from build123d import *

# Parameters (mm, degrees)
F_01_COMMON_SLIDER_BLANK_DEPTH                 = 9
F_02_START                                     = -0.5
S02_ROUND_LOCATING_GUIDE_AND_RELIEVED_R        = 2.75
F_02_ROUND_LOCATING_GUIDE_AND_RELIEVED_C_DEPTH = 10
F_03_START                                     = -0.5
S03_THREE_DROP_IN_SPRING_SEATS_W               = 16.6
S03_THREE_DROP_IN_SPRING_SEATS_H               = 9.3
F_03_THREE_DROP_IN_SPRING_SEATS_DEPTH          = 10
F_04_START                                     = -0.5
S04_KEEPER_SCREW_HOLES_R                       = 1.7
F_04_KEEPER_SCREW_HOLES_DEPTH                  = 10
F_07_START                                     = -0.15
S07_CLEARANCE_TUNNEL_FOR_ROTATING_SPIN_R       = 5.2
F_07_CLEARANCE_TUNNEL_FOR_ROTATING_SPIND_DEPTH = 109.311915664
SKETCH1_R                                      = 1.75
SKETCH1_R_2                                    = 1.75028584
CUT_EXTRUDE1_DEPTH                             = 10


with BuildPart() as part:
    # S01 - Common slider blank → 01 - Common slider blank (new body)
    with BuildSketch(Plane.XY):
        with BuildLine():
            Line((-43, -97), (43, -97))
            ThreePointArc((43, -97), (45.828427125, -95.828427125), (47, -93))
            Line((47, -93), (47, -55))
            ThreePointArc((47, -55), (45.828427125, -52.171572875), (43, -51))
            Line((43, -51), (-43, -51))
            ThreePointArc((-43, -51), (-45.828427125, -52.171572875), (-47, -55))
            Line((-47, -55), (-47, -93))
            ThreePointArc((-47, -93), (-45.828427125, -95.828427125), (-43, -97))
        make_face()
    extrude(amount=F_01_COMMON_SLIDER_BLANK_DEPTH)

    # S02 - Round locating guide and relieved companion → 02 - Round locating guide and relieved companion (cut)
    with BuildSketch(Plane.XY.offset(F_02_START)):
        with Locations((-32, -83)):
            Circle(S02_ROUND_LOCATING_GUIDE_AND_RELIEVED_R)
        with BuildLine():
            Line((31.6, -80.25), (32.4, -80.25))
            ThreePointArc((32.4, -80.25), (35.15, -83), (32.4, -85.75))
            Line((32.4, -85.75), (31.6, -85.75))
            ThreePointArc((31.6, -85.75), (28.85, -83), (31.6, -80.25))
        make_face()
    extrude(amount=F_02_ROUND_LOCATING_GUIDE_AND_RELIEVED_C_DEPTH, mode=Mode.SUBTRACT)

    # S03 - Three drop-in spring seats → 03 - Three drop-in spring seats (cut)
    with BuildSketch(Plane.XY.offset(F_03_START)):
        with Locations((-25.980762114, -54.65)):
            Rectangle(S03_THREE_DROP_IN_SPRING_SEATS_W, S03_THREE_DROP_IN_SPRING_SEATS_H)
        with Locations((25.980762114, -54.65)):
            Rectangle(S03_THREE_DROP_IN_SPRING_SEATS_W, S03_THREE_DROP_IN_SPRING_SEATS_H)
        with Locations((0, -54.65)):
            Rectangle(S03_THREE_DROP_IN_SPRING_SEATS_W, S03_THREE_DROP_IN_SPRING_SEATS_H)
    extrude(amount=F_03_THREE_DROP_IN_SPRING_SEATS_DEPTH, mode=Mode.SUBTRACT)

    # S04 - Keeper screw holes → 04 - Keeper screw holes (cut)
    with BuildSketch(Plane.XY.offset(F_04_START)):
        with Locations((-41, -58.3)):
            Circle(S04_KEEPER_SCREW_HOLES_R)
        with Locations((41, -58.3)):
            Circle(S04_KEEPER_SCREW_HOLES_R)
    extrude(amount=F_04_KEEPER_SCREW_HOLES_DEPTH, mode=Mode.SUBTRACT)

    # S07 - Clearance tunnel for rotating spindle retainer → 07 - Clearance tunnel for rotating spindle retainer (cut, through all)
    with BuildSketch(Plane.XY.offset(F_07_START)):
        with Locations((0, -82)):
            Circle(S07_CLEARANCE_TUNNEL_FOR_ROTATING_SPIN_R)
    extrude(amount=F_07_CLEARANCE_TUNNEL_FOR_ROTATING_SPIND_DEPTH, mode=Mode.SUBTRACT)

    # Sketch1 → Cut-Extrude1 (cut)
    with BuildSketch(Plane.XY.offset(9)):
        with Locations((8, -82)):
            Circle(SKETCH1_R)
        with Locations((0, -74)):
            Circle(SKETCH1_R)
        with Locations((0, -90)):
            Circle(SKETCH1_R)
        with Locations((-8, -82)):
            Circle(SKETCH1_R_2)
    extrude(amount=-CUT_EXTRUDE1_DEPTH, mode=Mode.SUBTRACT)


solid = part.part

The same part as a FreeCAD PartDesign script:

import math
import FreeCAD as App
import Part
import Sketcher

V = App.Vector
Q = App.Units.Quantity

doc = App.newDocument("Part")
body = doc.addObject("PartDesign::Body", "Body")

# Sketch on XY plane
sketch1 = doc.addObject("Sketcher::SketchObject", "Sketch")
body.addObject(sketch1)
sketch1.AttachmentSupport = (doc.XY_Plane, [""])
sketch1.MapMode = "FlatFace"
sketch1.addGeometry([
    Part.LineSegment(V(-43, -97, 0), V(43, -97, 0)),  # 0
    Part.ArcOfCircle(Part.Circle(V(43, -93, 0), V(0, 0, 1), 4), math.radians(-90), math.radians(0)),  # 1
    Part.LineSegment(V(47, -93, 0), V(47, -55, 0)),  # 2
    Part.ArcOfCircle(Part.Circle(V(43, -55, 0), V(0, 0, 1), 4), math.radians(0), math.radians(90)),  # 3
    Part.LineSegment(V(43, -51, 0), V(-43, -51, 0)),  # 4
    Part.ArcOfCircle(Part.Circle(V(-43, -55, 0), V(0, 0, 1), 4), math.radians(90), math.radians(180)),  # 5
    Part.LineSegment(V(-47, -55, 0), V(-47, -93, 0)),  # 6
    Part.ArcOfCircle(Part.Circle(V(-43, -93, 0), V(0, 0, 1), 4), math.radians(180), math.radians(270)),  # 7
], False)
sketch1.addConstraint([
    Sketcher.Constraint("Tangent", 0, 2, 1, 1),
    Sketcher.Constraint("Tangent", 1, 2, 2, 1),
    Sketcher.Constraint("Tangent", 2, 2, 3, 1),
    Sketcher.Constraint("Tangent", 3, 2, 4, 1),
    Sketcher.Constraint("Tangent", 4, 2, 5, 1),
    Sketcher.Constraint("Tangent", 5, 2, 6, 1),
    Sketcher.Constraint("Tangent", 6, 2, 7, 1),
    Sketcher.Constraint("Tangent", 7, 2, 0, 1),
    Sketcher.Constraint("Horizontal", 0),
    Sketcher.Constraint("Vertical", 2),
    Sketcher.Constraint("Horizontal", 4),
    Sketcher.Constraint("Vertical", 6),
    Sketcher.Constraint("Equal", 1, 3),
    Sketcher.Constraint("Equal", 3, 5),
    Sketcher.Constraint("Equal", 5, 7),
    Sketcher.Constraint("Radius", 1, Q("4 mm")),
    Sketcher.Constraint("DistanceX", 0, 1, 0, 2, Q("86 mm")),
    Sketcher.Constraint("DistanceY", 2, 1, 2, 2, Q("38 mm")),
    Sketcher.Constraint("DistanceX", -1, 1, 1, 3, Q("43 mm")),
    Sketcher.Constraint("DistanceY", 1, 3, -1, 1, Q("93 mm")),
])
pad1 = doc.addObject("PartDesign::Pad", "Pad")
body.addObject(pad1)
pad1.Profile = sketch1
pad1.Length = 9

# Sketch on XY plane
sketch2 = doc.addObject("Sketcher::SketchObject", "Sketch001")
body.addObject(sketch2)
sketch2.AttachmentSupport = (doc.XY_Plane, [""])
sketch2.MapMode = "FlatFace"
sketch2.AttachmentOffset = App.Placement(V(0, 0, -0.5), App.Rotation())
sketch2.addGeometry([
    Part.Circle(V(-32, -83, 0), V(0, 0, 1), 2.8),  # 0
    Part.LineSegment(V(32.4, -80.2, 0), V(31.6, -80.2, 0)),  # 1
    Part.ArcOfCircle(Part.Circle(V(31.6, -83, 0), V(0, 0, 1), 2.8), math.radians(90), math.radians(270)),  # 2
    Part.LineSegment(V(31.6, -85.8, 0), V(32.4, -85.8, 0)),  # 3
    Part.ArcOfCircle(Part.Circle(V(32.4, -83, 0), V(0, 0, 1), 2.8), math.radians(-90), math.radians(90)),  # 4
], False)
sketch2.addConstraint([
    Sketcher.Constraint("Tangent", 1, 2, 2, 1),
    Sketcher.Constraint("Tangent", 2, 2, 3, 1),
    Sketcher.Constraint("Tangent", 3, 2, 4, 1),
    Sketcher.Constraint("Tangent", 4, 2, 1, 1),
    Sketcher.Constraint("Horizontal", 1),
    Sketcher.Constraint("Horizontal", 3),
    Sketcher.Constraint("Equal", 0, 2),
    Sketcher.Constraint("Horizontal", 0, 3, 2, 3),
    Sketcher.Constraint("Diameter", 0, Q("5.5 mm")),
    Sketcher.Constraint("DistanceX", 1, 2, 1, 1, Q("0.8 mm")),
    Sketcher.Constraint("DistanceX", 0, 3, -1, 1, Q("32 mm")),
    Sketcher.Constraint("DistanceY", 0, 3, -1, 1, Q("83 mm")),
    Sketcher.Constraint("DistanceX", -1, 1, 2, 3, Q("31.6 mm")),
])
pocket1 = doc.addObject("PartDesign::Pocket", "Pocket")
body.addObject(pocket1)
pocket1.Profile = sketch2
pocket1.Length = 10
pocket1.Reversed = True

# Sketch on XY plane
sketch3 = doc.addObject("Sketcher::SketchObject", "Sketch002")
body.addObject(sketch3)
sketch3.AttachmentSupport = (doc.XY_Plane, [""])
sketch3.MapMode = "FlatFace"
sketch3.AttachmentOffset = App.Placement(V(0, 0, -0.5), App.Rotation())
sketch3.addGeometry([
    Part.LineSegment(V(-34, -50, 0), V(-34, -59, 0)),  # 0
    Part.LineSegment(V(-34, -59, 0), V(-18, -59, 0)),  # 1
    Part.LineSegment(V(-18, -59, 0), V(-18, -50, 0)),  # 2
    Part.LineSegment(V(-18, -50, 0), V(-34, -50, 0)),  # 3
    Part.LineSegment(V(18, -50, 0), V(18, -59, 0)),  # 4
    Part.LineSegment(V(18, -59, 0), V(34, -59, 0)),  # 5
    Part.LineSegment(V(34, -59, 0), V(34, -50, 0)),  # 6
    Part.LineSegment(V(34, -50, 0), V(18, -50, 0)),  # 7
    Part.LineSegment(V(-8, -50, 0), V(-8, -59, 0)),  # 8
    Part.LineSegment(V(-8, -59, 0), V(8, -59, 0)),  # 9
    Part.LineSegment(V(8, -59, 0), V(8, -50, 0)),  # 10
    Part.LineSegment(V(8, -50, 0), V(-8, -50, 0)),  # 11
], False)
sketch3.addConstraint([
    Sketcher.Constraint("Coincident", 0, 2, 1, 1),
    Sketcher.Constraint("Coincident", 1, 2, 2, 1),
    Sketcher.Constraint("Coincident", 2, 2, 3, 1),
    Sketcher.Constraint("Coincident", 3, 2, 0, 1),
    Sketcher.Constraint("Coincident", 4, 2, 5, 1),
    Sketcher.Constraint("Coincident", 5, 2, 6, 1),
    Sketcher.Constraint("Coincident", 6, 2, 7, 1),
    Sketcher.Constraint("Coincident", 7, 2, 4, 1),
    Sketcher.Constraint("Coincident", 8, 2, 9, 1),
    Sketcher.Constraint("Coincident", 9, 2, 10, 1),
    Sketcher.Constraint("Coincident", 10, 2, 11, 1),
    Sketcher.Constraint("Coincident", 11, 2, 8, 1),
    Sketcher.Constraint("Vertical", 0),
    Sketcher.Constraint("Horizontal", 1),
    Sketcher.Constraint("Vertical", 2),
    Sketcher.Constraint("Horizontal", 3),
    Sketcher.Constraint("Vertical", 4),
    Sketcher.Constraint("Horizontal", 5),
    Sketcher.Constraint("Vertical", 6),
    Sketcher.Constraint("Horizontal", 7),
    Sketcher.Constraint("Vertical", 8),
    Sketcher.Constraint("Horizontal", 9),
    Sketcher.Constraint("Vertical", 10),
    Sketcher.Constraint("Horizontal", 11),
    Sketcher.Constraint("Symmetric", 1, 2, 4, 2, -2),
    Sketcher.Constraint("Symmetric", 3, 2, 6, 2, -2),
    Sketcher.Constraint("Horizontal", 5, 2, 8, 2),
    Sketcher.Constraint("Horizontal", 7, 2, 10, 2),
    Sketcher.Constraint("Equal", 7, 9),
    Sketcher.Constraint("DistanceX", 1, 1, 1, 2, Q("16.6 mm")),
    Sketcher.Constraint("DistanceY", 0, 2, 0, 1, Q("9.3 mm")),
    Sketcher.Constraint("DistanceY", 2, 2, -1, 1, Q("50 mm")),
    Sketcher.Constraint("DistanceX", 8, 2, -1, 1, Q("8.3 mm")),
    Sketcher.Constraint("DistanceX", 0, 2, -1, 1, Q("34.280762 mm")),
])
pocket2 = doc.addObject("PartDesign::Pocket", "Pocket001")
body.addObject(pocket2)
pocket2.Profile = sketch3
pocket2.Length = 10
pocket2.Reversed = True

# Sketch on XY plane
sketch4 = doc.addObject("Sketcher::SketchObject", "Sketch003")
body.addObject(sketch4)
sketch4.AttachmentSupport = (doc.XY_Plane, [""])
sketch4.MapMode = "FlatFace"
sketch4.AttachmentOffset = App.Placement(V(0, 0, -0.5), App.Rotation())
sketch4.addGeometry([
    Part.Circle(V(-41, -58.3, 0), V(0, 0, 1), 1.7),
    Part.Circle(V(41, -58.3, 0), V(0, 0, 1), 1.7),
], False)
sketch4.addConstraint([
    Sketcher.Constraint("Equal", 0, 1),
    Sketcher.Constraint("Symmetric", 0, 3, 1, 3, -2),
    Sketcher.Constraint("Diameter", 0, Q("3.4 mm")),
    Sketcher.Constraint("DistanceX", 0, 3, -1, 1, Q("41 mm")),
    Sketcher.Constraint("DistanceY", 0, 3, -1, 1, Q("58.3 mm")),
])
pocket3 = doc.addObject("PartDesign::Pocket", "Pocket002")
body.addObject(pocket3)
pocket3.Profile = sketch4
pocket3.Length = 10
pocket3.Reversed = True

# Sketch on XY plane
sketch5 = doc.addObject("Sketcher::SketchObject", "Sketch004")
body.addObject(sketch5)
sketch5.AttachmentSupport = (doc.XY_Plane, [""])
sketch5.MapMode = "FlatFace"
sketch5.AttachmentOffset = App.Placement(V(0, 0, -0.15), App.Rotation())
sketch5.addGeometry(Part.Circle(V(0, -82, 0), V(0, 0, 1), 5), False)
sketch5.addConstraint([
    Sketcher.Constraint("PointOnObject", 0, 3, -2),
    Sketcher.Constraint("Diameter", 0, Q("10.4 mm")),
    Sketcher.Constraint("DistanceY", 0, 3, -1, 1, Q("82 mm")),
])
pocket4 = doc.addObject("PartDesign::Pocket", "Pocket003")
body.addObject(pocket4)
pocket4.Profile = sketch5
pocket4.Type = "ThroughAll"
pocket4.Reversed = True

# Sketch on XY plane
sketch6 = doc.addObject("Sketcher::SketchObject", "Sketch005")
body.addObject(sketch6)
sketch6.AttachmentSupport = (doc.XY_Plane, [""])
sketch6.MapMode = "FlatFace"
sketch6.AttachmentOffset = App.Placement(V(0, 0, 9), App.Rotation())
sketch6.addGeometry([
    Part.Circle(V(8, -82, 0), V(0, 0, 1), 1.8),
    Part.Circle(V(0, -74, 0), V(0, 0, 1), 1.8),
    Part.Circle(V(0, -90, 0), V(0, 0, 1), 1.8),
    Part.Circle(V(-8, -82, 0), V(0, 0, 1), 1.8),
], False)
sketch6.addConstraint([
    Sketcher.Constraint("Equal", 0, 1),
    Sketcher.Constraint("Equal", 1, 2),
    Sketcher.Constraint("Symmetric", 0, 3, 3, 3, -2),
    Sketcher.Constraint("PointOnObject", 1, 3, -2),
    Sketcher.Constraint("PointOnObject", 2, 3, -2),
    Sketcher.Constraint("Diameter", 0, Q("3.5 mm")),
    Sketcher.Constraint("DistanceX", -1, 1, 0, 3, Q("8 mm")),
    Sketcher.Constraint("DistanceY", 0, 3, -1, 1, Q("82 mm")),
    Sketcher.Constraint("DistanceY", 1, 3, -1, 1, Q("74 mm")),
    Sketcher.Constraint("DistanceY", 2, 3, -1, 1, Q("90 mm")),
    Sketcher.Constraint("Diameter", 3, Q("3.500572 mm")),
])
pocket5 = doc.addObject("PartDesign::Pocket", "Pocket004")
body.addObject(pocket5)
pocket5.Profile = sketch6
pocket5.Length = 10

doc.recompute()
